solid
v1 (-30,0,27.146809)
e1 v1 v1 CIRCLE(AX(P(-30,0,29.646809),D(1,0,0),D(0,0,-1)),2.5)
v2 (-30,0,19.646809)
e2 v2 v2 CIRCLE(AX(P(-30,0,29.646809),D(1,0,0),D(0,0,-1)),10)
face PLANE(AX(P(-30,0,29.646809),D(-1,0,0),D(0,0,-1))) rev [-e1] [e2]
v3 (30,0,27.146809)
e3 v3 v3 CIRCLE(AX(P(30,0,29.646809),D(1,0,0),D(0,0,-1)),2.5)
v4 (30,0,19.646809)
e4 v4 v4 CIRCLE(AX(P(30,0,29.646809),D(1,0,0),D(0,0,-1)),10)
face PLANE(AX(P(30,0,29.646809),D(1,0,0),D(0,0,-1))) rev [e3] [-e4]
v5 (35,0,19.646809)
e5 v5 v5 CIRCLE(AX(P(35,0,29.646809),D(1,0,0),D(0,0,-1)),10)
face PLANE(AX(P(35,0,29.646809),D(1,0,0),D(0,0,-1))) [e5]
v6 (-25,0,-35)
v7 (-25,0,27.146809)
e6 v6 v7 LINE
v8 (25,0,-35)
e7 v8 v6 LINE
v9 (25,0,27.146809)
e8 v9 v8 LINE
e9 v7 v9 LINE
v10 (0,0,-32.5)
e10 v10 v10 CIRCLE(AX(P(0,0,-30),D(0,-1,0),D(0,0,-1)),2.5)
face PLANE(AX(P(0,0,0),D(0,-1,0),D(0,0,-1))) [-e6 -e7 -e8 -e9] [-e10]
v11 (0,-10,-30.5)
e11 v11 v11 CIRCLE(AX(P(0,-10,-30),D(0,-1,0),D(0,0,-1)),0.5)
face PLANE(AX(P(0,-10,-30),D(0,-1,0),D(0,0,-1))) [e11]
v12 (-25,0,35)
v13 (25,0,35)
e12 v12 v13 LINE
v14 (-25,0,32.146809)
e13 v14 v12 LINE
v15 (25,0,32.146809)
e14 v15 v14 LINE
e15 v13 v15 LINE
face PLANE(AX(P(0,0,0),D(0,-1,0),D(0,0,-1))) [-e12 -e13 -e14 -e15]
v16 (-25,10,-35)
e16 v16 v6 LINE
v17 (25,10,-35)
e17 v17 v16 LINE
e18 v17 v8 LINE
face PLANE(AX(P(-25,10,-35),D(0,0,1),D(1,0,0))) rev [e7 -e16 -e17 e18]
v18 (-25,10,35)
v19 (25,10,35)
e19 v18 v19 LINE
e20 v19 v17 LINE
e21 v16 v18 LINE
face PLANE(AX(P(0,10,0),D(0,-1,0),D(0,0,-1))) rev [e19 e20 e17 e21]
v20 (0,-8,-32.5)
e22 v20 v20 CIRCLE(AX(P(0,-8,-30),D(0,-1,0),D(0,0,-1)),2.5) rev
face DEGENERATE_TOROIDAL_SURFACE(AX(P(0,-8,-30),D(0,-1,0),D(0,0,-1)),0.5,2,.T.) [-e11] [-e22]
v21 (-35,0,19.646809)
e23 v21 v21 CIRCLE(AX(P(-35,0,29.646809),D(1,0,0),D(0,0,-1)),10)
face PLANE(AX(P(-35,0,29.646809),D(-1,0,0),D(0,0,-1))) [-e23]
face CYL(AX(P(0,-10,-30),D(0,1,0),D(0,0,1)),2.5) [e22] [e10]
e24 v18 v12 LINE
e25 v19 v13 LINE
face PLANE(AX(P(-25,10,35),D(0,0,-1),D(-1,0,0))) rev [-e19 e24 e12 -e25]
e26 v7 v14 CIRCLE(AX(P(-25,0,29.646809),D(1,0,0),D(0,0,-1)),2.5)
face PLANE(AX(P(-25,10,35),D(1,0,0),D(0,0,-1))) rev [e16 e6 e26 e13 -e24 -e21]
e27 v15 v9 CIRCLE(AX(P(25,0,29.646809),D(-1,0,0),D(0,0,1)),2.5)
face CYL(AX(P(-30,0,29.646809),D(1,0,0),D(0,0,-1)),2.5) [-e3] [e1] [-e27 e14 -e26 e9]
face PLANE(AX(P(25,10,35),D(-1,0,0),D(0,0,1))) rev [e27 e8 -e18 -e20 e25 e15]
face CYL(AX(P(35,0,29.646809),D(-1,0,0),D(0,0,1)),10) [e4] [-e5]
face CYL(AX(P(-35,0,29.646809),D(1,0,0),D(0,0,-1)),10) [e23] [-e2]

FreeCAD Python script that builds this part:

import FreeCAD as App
import Part
import Sketcher


def edges_at(feature, points):
    """Names of the edges that pass closest to the given points."""
    edges = feature.Shape.Edges
    near = lambda p: min(range(len(edges)), key=lambda i: edges[i].distToShape(Part.Vertex(*p))[0])
    return sorted({f"Edge{near(p) + 1}" for p in points})

doc = App.newDocument("Part")
body = doc.addObject("PartDesign::Body", "Body")

# Sketch on XZ plane
sketch1 = body.newObject("Sketcher::SketchObject", "Sketch")
sketch1.AttachmentSupport = (doc.getObject("XZ_Plane"), [""])
sketch1.MapMode = "FlatFace"
sketch1.addGeometry([
    Part.LineSegment(App.Vector(-25, -35, 0), App.Vector(-25, 35, 0)),
    Part.LineSegment(App.Vector(-25, 35, 0), App.Vector(25, 35, 0)),
    Part.LineSegment(App.Vector(25, 35, 0), App.Vector(25, -35, 0)),
    Part.LineSegment(App.Vector(25, -35, 0), App.Vector(-25, -35, 0)),
], False)
sketch1.addConstraint([
    Sketcher.Constraint("Coincident", 0, 2, 1, 1),
    Sketcher.Constraint("Coincident", 1, 2, 2, 1),
    Sketcher.Constraint("Coincident", 2, 2, 3, 1),
    Sketcher.Constraint("Coincident", 3, 2, 0, 1),
    Sketcher.Constraint("Vertical", 0),
    Sketcher.Constraint("Horizontal", 1),
    Sketcher.Constraint("Vertical", 2),
    Sketcher.Constraint("Horizontal", 3),
    Sketcher.Constraint("Symmetric", 0, 2, 2, 2, -1, 1),
    Sketcher.Constraint("DistanceX", 1, 1, 1, 2, 50.0),
    Sketcher.Constraint("DistanceY", 0, 1, 0, 2, 70.0),
])
pad1 = body.newObject("PartDesign::Pad", "Pad")
pad1.Profile = sketch1
pad1.Length = 10
pad1.Reversed = True

# Sketch on YZ plane
sketch2 = body.newObject("Sketcher::SketchObject", "Sketch001")
sketch2.AttachmentSupport = (doc.getObject("YZ_Plane"), [""])
sketch2.MapMode = "FlatFace"
sketch2.addGeometry(Part.Circle(App.Vector(0, 29.646809, 0), App.Vector(0, 0, 1), 2.5), False)
sketch2.addConstraint([
    Sketcher.Constraint("PointOnObject", 0, 3, -2),
    Sketcher.Constraint("Diameter", 0, 5.0),
    Sketcher.Constraint("DistanceY", -1, 1, 0, 3, 29.646809),
])
pad2 = body.newObject("PartDesign::Pad", "Pad001")
pad2.Profile = sketch2
pad2.Type = "TwoLengths"
pad2.Length = 30
pad2.Length2 = 30

# Sketch on YZ plane
sketch3 = body.newObject("Sketcher::SketchObject", "Sketch002")
sketch3.AttachmentSupport = (doc.getObject("YZ_Plane"), [""])
sketch3.MapMode = "FlatFace"
sketch3.AttachmentOffset = App.Placement(App.Vector(0, 0, 30), App.Rotation())
sketch3.addGeometry(Part.Circle(App.Vector(0, 29.646809, 0), App.Vector(0, 0, 1), 10), False)
sketch3.addConstraint([
    Sketcher.Constraint("PointOnObject", 0, 3, -2),
    Sketcher.Constraint("Diameter", 0, 20.0),
    Sketcher.Constraint("DistanceY", -1, 1, 0, 3, 29.646809),
])
pad3 = body.newObject("PartDesign::Pad", "Pad002")
pad3.Profile = sketch3
pad3.Length = 5
doc.recompute()

mirrored = body.newObject("PartDesign::Mirrored", "Mirrored")
mirrored.Originals = [pad3]
mirrored.MirrorPlane = (doc.getObject("YZ_Plane"), [""])
body.Tip = mirrored

# Sketch on XZ plane
sketch4 = body.newObject("Sketcher::SketchObject", "Sketch003")
sketch4.AttachmentSupport = (doc.getObject("XZ_Plane"), [""])
sketch4.MapMode = "FlatFace"
sketch4.addGeometry(Part.Circle(App.Vector(0, -30, 0), App.Vector(0, 0, 1), 2.5), False)
sketch4.addConstraint([
    Sketcher.Constraint("PointOnObject", 0, 3, -2),
    Sketcher.Constraint("Diameter", 0, 5.0),
    Sketcher.Constraint("DistanceY", 0, 3, -1, 1, 30.0),
])
pad4 = body.newObject("PartDesign::Pad", "Pad003")
pad4.Profile = sketch4
pad4.Length = 10
doc.recompute()

fillet = body.newObject("PartDesign::Fillet", "Fillet")
fillet.Base = (pad4, edges_at(pad4, [(0, -10, -27.5)]))
fillet.Radius = 2

doc.recompute()
